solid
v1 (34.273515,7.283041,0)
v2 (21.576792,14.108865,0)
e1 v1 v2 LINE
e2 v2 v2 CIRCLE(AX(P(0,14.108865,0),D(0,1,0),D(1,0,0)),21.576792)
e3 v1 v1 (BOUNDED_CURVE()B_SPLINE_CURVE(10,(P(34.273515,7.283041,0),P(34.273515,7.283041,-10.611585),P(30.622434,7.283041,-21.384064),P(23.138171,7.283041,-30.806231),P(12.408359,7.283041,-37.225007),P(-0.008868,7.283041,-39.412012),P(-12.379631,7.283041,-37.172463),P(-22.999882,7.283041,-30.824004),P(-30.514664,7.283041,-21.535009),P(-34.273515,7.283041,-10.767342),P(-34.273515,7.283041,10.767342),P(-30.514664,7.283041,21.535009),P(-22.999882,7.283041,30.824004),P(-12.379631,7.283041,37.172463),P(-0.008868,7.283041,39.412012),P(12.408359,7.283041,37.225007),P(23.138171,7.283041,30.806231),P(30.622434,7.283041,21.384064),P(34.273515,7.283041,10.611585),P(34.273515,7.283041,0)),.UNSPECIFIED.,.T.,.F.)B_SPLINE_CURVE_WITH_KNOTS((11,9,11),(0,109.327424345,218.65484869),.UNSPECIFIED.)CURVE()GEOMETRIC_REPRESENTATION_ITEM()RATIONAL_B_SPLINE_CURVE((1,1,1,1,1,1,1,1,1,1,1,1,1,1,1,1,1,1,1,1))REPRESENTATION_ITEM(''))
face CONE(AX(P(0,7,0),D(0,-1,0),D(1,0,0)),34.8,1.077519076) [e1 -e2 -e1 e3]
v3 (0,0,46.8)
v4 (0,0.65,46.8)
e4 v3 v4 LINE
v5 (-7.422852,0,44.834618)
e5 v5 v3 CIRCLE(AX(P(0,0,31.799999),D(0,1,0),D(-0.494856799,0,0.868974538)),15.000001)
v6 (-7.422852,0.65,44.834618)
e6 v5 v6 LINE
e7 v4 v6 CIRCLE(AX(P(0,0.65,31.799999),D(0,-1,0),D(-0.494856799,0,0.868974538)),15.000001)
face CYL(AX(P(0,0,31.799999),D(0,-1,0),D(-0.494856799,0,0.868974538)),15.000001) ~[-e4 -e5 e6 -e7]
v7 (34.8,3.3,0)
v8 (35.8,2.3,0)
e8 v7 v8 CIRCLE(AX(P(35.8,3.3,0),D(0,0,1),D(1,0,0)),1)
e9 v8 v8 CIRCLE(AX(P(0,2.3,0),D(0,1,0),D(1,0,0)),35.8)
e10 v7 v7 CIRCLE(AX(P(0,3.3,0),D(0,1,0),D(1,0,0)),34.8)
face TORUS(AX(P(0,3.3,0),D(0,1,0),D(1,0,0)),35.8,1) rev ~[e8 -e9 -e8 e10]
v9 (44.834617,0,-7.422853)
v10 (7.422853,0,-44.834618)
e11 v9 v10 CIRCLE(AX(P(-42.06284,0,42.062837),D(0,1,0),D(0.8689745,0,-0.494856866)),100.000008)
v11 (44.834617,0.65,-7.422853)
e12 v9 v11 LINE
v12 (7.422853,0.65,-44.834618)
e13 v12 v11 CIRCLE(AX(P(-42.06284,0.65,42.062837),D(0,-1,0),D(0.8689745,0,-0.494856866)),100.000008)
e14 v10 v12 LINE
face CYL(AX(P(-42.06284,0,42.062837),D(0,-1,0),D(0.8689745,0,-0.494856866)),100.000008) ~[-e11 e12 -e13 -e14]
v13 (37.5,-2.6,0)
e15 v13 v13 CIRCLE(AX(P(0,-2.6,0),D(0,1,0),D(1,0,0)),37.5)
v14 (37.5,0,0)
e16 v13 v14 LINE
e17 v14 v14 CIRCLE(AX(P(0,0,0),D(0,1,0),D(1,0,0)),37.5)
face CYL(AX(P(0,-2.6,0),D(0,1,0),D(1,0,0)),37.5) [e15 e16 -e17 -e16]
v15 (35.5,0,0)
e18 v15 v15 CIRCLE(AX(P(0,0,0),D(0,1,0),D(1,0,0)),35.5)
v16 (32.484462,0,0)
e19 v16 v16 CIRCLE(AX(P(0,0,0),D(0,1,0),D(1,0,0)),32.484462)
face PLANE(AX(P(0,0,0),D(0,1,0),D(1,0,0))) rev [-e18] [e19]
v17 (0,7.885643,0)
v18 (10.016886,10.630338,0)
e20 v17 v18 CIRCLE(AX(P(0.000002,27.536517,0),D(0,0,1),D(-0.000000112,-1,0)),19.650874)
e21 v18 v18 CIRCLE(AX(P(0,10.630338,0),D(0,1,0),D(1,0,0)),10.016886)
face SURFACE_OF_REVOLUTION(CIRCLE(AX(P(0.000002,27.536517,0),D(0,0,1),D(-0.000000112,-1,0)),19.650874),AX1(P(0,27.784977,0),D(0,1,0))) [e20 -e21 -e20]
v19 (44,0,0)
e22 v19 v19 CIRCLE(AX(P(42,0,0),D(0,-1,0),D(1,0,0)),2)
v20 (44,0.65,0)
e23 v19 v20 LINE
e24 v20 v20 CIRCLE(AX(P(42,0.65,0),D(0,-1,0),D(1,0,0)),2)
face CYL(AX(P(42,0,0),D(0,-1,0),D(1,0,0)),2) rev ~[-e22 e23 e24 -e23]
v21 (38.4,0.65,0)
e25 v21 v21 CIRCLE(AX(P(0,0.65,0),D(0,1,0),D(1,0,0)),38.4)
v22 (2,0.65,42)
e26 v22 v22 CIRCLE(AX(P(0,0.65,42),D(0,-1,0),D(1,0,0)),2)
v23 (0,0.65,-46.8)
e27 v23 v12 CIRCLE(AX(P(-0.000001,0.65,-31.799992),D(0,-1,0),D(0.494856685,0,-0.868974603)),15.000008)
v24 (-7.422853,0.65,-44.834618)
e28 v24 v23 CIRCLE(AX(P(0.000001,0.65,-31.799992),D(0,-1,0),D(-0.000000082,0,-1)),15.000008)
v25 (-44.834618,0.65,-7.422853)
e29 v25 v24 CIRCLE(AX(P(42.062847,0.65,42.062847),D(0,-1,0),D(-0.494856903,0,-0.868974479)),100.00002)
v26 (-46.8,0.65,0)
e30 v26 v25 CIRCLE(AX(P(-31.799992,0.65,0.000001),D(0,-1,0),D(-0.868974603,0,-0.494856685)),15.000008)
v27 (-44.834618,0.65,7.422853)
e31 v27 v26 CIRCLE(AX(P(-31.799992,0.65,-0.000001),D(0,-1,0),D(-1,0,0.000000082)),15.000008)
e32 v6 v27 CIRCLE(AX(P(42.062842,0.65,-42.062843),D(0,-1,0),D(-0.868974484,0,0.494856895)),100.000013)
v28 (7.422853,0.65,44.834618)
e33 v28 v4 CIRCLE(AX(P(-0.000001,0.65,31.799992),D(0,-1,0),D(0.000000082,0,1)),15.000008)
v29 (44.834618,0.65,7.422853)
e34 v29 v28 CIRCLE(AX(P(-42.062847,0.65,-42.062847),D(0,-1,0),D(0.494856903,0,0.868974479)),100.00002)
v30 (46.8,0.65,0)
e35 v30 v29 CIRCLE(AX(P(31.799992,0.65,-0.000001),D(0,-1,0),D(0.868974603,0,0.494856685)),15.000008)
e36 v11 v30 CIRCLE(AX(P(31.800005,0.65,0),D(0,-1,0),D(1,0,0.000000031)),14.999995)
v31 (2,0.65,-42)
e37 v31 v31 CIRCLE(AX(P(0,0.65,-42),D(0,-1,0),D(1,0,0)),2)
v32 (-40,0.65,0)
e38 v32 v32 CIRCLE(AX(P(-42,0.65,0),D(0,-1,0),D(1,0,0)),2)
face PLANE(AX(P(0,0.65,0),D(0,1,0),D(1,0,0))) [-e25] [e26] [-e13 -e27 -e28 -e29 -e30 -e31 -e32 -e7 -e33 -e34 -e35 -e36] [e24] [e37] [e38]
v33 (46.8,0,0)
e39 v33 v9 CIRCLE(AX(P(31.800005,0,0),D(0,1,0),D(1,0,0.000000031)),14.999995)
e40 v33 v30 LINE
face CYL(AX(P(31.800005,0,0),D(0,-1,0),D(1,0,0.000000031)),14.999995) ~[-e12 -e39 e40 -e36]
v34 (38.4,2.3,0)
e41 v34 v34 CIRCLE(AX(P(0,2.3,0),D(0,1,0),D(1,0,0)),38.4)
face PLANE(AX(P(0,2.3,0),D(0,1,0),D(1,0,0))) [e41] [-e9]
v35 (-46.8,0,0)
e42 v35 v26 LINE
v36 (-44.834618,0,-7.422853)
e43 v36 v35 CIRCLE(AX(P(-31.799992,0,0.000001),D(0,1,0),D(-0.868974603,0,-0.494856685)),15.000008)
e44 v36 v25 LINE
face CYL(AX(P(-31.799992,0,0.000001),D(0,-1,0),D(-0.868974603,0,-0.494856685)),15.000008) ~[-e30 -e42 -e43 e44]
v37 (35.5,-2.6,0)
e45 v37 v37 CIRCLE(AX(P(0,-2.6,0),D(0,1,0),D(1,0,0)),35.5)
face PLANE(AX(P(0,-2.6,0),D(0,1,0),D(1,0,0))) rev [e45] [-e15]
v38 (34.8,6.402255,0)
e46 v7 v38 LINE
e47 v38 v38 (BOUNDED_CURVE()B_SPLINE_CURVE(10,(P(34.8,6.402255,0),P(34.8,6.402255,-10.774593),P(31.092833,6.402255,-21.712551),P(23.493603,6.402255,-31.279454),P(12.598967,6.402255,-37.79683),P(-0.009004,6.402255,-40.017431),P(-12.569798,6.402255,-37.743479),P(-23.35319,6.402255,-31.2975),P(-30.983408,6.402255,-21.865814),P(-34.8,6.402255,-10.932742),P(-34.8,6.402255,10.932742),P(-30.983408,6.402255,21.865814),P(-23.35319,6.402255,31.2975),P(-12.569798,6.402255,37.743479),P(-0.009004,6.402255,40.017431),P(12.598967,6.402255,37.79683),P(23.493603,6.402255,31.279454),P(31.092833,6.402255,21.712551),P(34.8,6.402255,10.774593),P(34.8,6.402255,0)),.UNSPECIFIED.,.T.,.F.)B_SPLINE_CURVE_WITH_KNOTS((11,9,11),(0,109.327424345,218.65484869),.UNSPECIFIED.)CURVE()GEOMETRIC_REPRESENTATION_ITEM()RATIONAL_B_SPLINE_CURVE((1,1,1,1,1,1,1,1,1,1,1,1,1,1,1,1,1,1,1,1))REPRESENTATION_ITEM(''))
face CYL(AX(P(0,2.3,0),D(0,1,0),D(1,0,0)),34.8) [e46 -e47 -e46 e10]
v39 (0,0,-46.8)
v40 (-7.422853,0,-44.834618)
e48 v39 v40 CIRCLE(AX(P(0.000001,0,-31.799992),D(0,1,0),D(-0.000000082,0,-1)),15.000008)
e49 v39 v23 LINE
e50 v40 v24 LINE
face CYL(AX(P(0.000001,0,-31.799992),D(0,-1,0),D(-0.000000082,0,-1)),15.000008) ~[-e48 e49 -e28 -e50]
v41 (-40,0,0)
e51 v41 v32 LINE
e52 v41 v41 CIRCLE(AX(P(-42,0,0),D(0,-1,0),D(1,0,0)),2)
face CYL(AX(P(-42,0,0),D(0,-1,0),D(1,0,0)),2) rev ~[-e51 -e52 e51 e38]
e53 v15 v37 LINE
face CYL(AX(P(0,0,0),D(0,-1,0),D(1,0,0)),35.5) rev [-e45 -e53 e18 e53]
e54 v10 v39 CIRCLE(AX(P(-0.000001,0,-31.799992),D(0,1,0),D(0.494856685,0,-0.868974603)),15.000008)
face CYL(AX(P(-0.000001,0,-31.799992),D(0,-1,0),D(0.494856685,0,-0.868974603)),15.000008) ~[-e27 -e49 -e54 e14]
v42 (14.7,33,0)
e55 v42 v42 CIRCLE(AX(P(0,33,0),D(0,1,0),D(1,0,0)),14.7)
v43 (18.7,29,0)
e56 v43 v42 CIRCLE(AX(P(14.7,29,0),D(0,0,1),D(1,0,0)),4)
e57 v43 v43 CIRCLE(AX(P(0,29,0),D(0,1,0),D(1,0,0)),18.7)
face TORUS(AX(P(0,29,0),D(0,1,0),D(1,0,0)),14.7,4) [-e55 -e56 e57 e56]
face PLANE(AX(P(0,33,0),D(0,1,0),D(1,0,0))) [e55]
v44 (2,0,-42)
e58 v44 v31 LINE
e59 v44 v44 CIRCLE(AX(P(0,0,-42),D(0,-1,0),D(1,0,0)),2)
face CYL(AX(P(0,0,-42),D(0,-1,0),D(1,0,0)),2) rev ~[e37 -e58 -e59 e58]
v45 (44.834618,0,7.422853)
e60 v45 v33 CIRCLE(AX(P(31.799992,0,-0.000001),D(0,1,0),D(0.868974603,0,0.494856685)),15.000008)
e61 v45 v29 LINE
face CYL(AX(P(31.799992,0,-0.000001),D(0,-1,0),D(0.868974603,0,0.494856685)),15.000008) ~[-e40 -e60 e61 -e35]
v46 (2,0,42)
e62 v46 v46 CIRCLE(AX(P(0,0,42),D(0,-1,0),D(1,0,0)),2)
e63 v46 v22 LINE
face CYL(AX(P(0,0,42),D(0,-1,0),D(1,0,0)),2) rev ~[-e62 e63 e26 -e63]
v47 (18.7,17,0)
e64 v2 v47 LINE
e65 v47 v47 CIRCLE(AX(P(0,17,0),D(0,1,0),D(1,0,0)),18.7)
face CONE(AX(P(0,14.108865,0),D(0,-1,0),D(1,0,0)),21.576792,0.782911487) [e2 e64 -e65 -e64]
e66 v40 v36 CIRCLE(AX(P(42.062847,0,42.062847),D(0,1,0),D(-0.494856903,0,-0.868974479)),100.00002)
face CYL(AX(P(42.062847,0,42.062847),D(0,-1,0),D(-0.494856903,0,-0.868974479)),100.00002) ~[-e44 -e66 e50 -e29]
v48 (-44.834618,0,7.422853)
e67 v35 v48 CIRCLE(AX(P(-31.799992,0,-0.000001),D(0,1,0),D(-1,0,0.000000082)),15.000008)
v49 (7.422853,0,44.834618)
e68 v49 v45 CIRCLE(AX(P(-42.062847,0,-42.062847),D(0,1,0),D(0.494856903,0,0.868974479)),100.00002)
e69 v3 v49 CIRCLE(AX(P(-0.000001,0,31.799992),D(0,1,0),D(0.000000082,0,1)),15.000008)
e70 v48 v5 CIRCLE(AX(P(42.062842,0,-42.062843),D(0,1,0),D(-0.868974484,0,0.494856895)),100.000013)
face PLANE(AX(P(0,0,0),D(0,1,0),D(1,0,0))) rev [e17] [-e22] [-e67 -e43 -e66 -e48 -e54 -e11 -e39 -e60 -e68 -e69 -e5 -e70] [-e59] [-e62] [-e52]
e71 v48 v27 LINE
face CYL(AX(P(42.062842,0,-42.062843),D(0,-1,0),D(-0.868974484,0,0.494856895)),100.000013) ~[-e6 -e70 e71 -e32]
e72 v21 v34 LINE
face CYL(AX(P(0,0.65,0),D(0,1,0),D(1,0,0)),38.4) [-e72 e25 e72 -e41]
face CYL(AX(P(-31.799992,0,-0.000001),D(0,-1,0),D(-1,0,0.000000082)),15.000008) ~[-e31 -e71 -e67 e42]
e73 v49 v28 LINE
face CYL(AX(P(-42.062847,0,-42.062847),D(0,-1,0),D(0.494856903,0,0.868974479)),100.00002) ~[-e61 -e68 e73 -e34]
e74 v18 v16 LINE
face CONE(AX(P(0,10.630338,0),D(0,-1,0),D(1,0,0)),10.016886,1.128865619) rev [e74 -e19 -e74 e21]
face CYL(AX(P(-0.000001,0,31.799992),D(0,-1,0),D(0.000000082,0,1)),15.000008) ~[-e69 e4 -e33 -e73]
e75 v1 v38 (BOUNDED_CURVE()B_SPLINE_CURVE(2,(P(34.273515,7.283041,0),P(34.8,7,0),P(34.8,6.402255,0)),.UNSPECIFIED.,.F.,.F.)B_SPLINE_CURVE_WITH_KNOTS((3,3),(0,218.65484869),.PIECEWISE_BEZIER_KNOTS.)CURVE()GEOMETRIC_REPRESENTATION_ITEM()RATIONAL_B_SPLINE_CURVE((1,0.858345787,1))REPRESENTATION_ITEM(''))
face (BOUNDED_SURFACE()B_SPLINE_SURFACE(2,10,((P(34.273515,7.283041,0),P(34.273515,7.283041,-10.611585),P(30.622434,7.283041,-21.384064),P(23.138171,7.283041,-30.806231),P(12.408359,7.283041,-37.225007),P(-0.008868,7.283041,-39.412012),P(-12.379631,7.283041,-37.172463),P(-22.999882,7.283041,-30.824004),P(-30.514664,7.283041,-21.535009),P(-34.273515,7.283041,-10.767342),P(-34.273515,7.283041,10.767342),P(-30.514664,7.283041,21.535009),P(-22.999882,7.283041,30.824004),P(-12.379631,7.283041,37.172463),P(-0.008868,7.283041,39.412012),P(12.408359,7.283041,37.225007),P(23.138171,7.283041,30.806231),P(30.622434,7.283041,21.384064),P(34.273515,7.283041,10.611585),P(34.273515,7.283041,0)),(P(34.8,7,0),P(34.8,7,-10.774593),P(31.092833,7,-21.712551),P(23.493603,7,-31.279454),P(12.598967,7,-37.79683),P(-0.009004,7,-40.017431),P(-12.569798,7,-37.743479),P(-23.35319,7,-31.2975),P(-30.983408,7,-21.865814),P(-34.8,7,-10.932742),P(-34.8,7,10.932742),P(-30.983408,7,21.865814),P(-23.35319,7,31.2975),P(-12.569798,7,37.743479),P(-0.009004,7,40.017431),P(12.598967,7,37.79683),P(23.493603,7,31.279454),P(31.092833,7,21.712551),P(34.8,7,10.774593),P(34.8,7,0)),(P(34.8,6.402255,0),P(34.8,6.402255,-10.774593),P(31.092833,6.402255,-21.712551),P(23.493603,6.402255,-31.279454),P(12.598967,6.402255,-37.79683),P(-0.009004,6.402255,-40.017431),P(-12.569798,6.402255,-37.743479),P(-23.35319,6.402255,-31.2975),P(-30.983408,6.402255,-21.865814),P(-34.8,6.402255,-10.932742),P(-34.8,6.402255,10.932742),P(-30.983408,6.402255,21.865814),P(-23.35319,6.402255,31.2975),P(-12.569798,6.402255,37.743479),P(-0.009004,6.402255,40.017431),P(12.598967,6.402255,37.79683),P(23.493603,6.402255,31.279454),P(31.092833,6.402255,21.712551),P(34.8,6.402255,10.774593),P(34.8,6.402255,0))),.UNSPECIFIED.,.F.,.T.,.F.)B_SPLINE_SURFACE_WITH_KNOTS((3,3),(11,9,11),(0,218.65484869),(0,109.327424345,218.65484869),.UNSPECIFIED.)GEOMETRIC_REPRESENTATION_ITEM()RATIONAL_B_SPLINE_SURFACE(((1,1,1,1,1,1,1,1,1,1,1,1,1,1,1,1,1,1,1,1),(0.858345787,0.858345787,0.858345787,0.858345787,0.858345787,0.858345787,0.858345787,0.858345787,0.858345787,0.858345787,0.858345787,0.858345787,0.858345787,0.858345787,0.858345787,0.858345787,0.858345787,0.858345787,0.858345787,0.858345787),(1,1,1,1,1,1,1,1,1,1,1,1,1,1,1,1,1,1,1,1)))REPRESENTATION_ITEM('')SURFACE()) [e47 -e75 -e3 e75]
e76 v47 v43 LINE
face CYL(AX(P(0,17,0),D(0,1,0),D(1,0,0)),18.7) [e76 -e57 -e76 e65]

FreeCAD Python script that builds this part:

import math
import FreeCAD as App
import Part
import Sketcher

V = App.Vector
Q = App.Units.Quantity


def edges_at(feature, points):
    """Names of the edges that pass closest to the given points."""
    edges = feature.Shape.Edges
    near = lambda p: min(range(len(edges)), key=lambda i: edges[i].distToShape(Part.Vertex(*p))[0])
    return sorted({f"Edge{near(p) + 1}" for p in points})

doc = App.newDocument("Part")
body = doc.addObject("PartDesign::Body", "Body")

# Sketch on XY plane
sketch1 = body.newObject("Sketcher::SketchObject", "Sketch")
sketch1.AttachmentSupport = (doc.getObject("XY_Plane"), [""])
sketch1.MapMode = "FlatFace"
sketch1.addGeometry([
    Part.LineSegment(V(37.5, -2.6, 0), V(37.5, 0, 0)),  # 0
    Part.LineSegment(V(37.5, 0, 0), V(46.8, 0, 0)),  # 1
    Part.LineSegment(V(46.8, 0, 0), V(46.8, 0.7, 0)),  # 2
    Part.LineSegment(V(46.8, 0.7, 0), V(38.4, 0.7, 0)),  # 3
    Part.LineSegment(V(38.4, 0.7, 0), V(38.4, 2.3, 0)),  # 4
    Part.LineSegment(V(38.4, 2.3, 0), V(34.8, 2.3, 0)),  # 5
    Part.LineSegment(V(34.8, 2.3, 0), V(34.8, 7, 0)),  # 6
    Part.LineSegment(V(34.8, 7, 0), V(21.6, 14.1, 0)),  # 7
    Part.LineSegment(V(21.6, 14.1, 0), V(18.7, 17, 0)),  # 8
    Part.LineSegment(V(18.7, 17, 0), V(18.7, 33, 0)),  # 9
    Part.LineSegment(V(18.7, 33, 0), V(0, 33, 0)),  # 10
    Part.LineSegment(V(0, 33, 0), V(0, 7.9, 0)),  # 11
    Part.ArcOfCircle(Part.Circle(V(0, 27.5, 0), V(0, 0, 1), 19.7), math.radians(-90), math.radians(-59)),  # 12
    Part.LineSegment(V(10, 10.6, 0), V(32.5, 0, 0)),  # 13
    Part.LineSegment(V(32.5, 0, 0), V(35.5, 0, 0)),  # 14
    Part.LineSegment(V(35.5, 0, 0), V(35.5, -2.6, 0)),  # 15
    Part.LineSegment(V(35.5, -2.6, 0), V(37.5, -2.6, 0)),  # 16
], False)
sketch1.addConstraint([
    Sketcher.Constraint("Coincident", 0, 2, 1, 1),
    Sketcher.Constraint("Coincident", 1, 2, 2, 1),
    Sketcher.Constraint("Coincident", 2, 2, 3, 1),
    Sketcher.Constraint("Coincident", 3, 2, 4, 1),
    Sketcher.Constraint("Coincident", 4, 2, 5, 1),
    Sketcher.Constraint("Coincident", 5, 2, 6, 1),
    Sketcher.Constraint("Coincident", 6, 2, 7, 1),
    Sketcher.Constraint("Coincident", 7, 2, 8, 1),
    Sketcher.Constraint("Coincident", 8, 2, 9, 1),
    Sketcher.Constraint("Coincident", 9, 2, 10, 1),
    Sketcher.Constraint("Coincident", 10, 2, 11, 1),
    Sketcher.Constraint("Coincident", 11, 2, 12, 1),
    Sketcher.Constraint("Coincident", 12, 2, 13, 1),
    Sketcher.Constraint("Coincident", 13, 2, 14, 1),
    Sketcher.Constraint("Coincident", 14, 2, 15, 1),
    Sketcher.Constraint("Coincident", 15, 2, 16, 1),
    Sketcher.Constraint("Coincident", 16, 2, 0, 1),
    Sketcher.Constraint("Vertical", 0),
    Sketcher.Constraint("Horizontal", 1),
    Sketcher.Constraint("Vertical", 2),
    Sketcher.Constraint("Horizontal", 3),
    Sketcher.Constraint("Vertical", 4),
    Sketcher.Constraint("Horizontal", 5),
    Sketcher.Constraint("Vertical", 6),
    Sketcher.Constraint("Vertical", 9),
    Sketcher.Constraint("Horizontal", 10),
    Sketcher.Constraint("Vertical", 11),
    Sketcher.Constraint("Horizontal", 14),
    Sketcher.Constraint("Vertical", 15),
    Sketcher.Constraint("Horizontal", 16),
    Sketcher.Constraint("PointOnObject", 0, 2, -1),
    Sketcher.Constraint("PointOnObject", 10, 2, -2),
    Sketcher.Constraint("PointOnObject", 13, 2, -1),
    Sketcher.Constraint("DistanceX", 16, 1, 16, 2, Q("2 mm")),
    Sketcher.Constraint("DistanceY", 9, 1, 9, 2, Q("16 mm")),
    Sketcher.Constraint("DistanceX", 1, 1, 1, 2, Q("9.3 mm")),
    Sketcher.Constraint("DistanceX", 3, 2, 3, 1, Q("8.4 mm")),
    Sketcher.Constraint("DistanceX", 5, 2, 5, 1, Q("3.6 mm")),
    Sketcher.Constraint("DistanceX", 10, 2, 10, 1, Q("18.7 mm")),
    Sketcher.Constraint("DistanceY", 0, 1, 0, 2, Q("2.6 mm")),
    Sketcher.Constraint("DistanceY", 6, 1, 6, 2, Q("4.7 mm")),
    Sketcher.Constraint("DistanceY", -1, 1, 6, 2, Q("7 mm")),
    Sketcher.Constraint("DistanceY", -1, 1, 8, 2, Q("17 mm")),
    Sketcher.Constraint("DistanceY", 2, 1, 2, 2, Q("0.65 mm")),
    Sketcher.Constraint("DistanceX", -1, 1, 0, 2, Q("37.5 mm")),
    Sketcher.Constraint("Radius", 12, Q("19.650874 mm")),
    Sketcher.Constraint("DistanceX", 14, 1, 14, 2, Q("3.015538 mm")),
    Sketcher.Constraint("DistanceY", 11, 2, 11, 1, Q("25.114357 mm")),
    Sketcher.Constraint("DistanceY", 11, 2, 7, 2, Q("6.223222 mm")),
    Sketcher.Constraint("DistanceY", 12, 2, 12, 3, Q("16.906179 mm")),
    Sketcher.Constraint("Distance", 7, Q("15.012967 mm")),
    Sketcher.Constraint("Distance", 13, Q("24.855504 mm")),
])
revolution = body.newObject("PartDesign::Revolution", "Revolution")
revolution.Profile = sketch1
revolution.ReferenceAxis = (sketch1, ["V_Axis"])
revolution.Angle = 360
doc.recompute()

fillet = body.newObject("PartDesign::Fillet", "Fillet")
fillet.Base = (revolution, edges_at(revolution, [(-18.7, 33, 0)]))
fillet.Radius = 4
doc.recompute()

fillet2 = body.newObject("PartDesign::Fillet", "Fillet001")
fillet2.Base = (fillet, edges_at(fillet, [(-34.8, 7, 0), (-34.8, 2.3, 0)]))
fillet2.Radius = 1

# Sketch on XZ plane
sketch2 = body.newObject("Sketcher::SketchObject", "Sketch001")
sketch2.AttachmentSupport = (doc.getObject("XZ_Plane"), [""])
sketch2.MapMode = "FlatFace"
sketch2.addGeometry([
    Part.ArcOfCircle(Part.Circle(V(0, 0, 0), V(0, 0, 1), 46.8), math.radians(-90), math.radians(0)),  # 0
    Part.ArcOfCircle(Part.Circle(V(31.8, 0, 0), V(0, 0, 1), 15), math.radians(-30), math.radians(0)),  # 1
    Part.ArcOfCircle(Part.Circle(V(-42.1, 42.1, 0), V(0, 0, 1), 100), math.radians(-60), math.radians(-30)),  # 2
    Part.ArcOfCircle(Part.Circle(V(0, -31.8, 0), V(0, 0, 1), 15), math.radians(-90), math.radians(-60)),  # 3
    Part.ArcOfCircle(Part.Circle(V(-31.8, 0, 0), V(0, 0, 1), 15), math.radians(-180), math.radians(-150)),  # 4
    Part.ArcOfCircle(Part.Circle(V(0, 0, 0), V(0, 0, 1), 46.8), math.radians(-180), math.radians(-90)),  # 5
    Part.ArcOfCircle(Part.Circle(V(0, -31.8, 0), V(0, 0, 1), 15), math.radians(-120), math.radians(-90)),  # 6
    Part.ArcOfCircle(Part.Circle(V(42.1, 42.1, 0), V(0, 0, 1), 100), math.radians(-150), math.radians(-120)),  # 7
    Part.ArcOfCircle(Part.Circle(V(0, 31.8, 0), V(0, 0, 1), 15), math.radians(90), math.radians(120)),  # 8
    Part.ArcOfCircle(Part.Circle(V(0, 0, 0), V(0, 0, 1), 46.8), math.radians(90), math.radians(180)),  # 9
    Part.ArcOfCircle(Part.Circle(V(-31.8, 0, 0), V(0, 0, 1), 15), math.radians(150), math.radians(180)),  # 10
    Part.ArcOfCircle(Part.Circle(V(42.1, -42.1, 0), V(0, 0, 1), 100), math.radians(120), math.radians(150)),  # 11
    Part.ArcOfCircle(Part.Circle(V(0, 31.8, 0), V(0, 0, 1), 15), math.radians(60), math.radians(90)),  # 12
    Part.ArcOfCircle(Part.Circle(V(-42.1, -42.1, 0), V(0, 0, 1), 100), math.radians(30), math.radians(60)),  # 13
    Part.ArcOfCircle(Part.Circle(V(31.8, 0, 0), V(0, 0, 1), 15), math.radians(0), math.radians(30)),  # 14
    Part.ArcOfCircle(Part.Circle(V(0, 0, 0), V(0, 0, 1), 46.8), math.radians(0), math.radians(90)),  # 15
    Part.Circle(V(0, -42, 0), V(0, 0, 1), 2),  # 16
    Part.Circle(V(0, 42, 0), V(0, 0, 1), 2),  # 17
    Part.Circle(V(-42, 0, 0), V(0, 0, 1), 2),  # 18
    Part.Circle(V(42, 0, 0), V(0, 0, 1), 2),  # 19
], False)
sketch2.addConstraint([
    Sketcher.Constraint("Tangent", 0, 2, 1, 2),
    Sketcher.Constraint("Tangent", 1, 1, 2, 2),
    Sketcher.Constraint("Tangent", 2, 1, 3, 2),
    Sketcher.Constraint("Tangent", 3, 1, 0, 1),
    Sketcher.Constraint("Tangent", 4, 1, 5, 1),
    Sketcher.Constraint("Tangent", 5, 2, 6, 2),
    Sketcher.Constraint("Tangent", 6, 1, 7, 2),
    Sketcher.Constraint("Tangent", 7, 1, 4, 2),
    Sketcher.Constraint("Tangent", 8, 1, 9, 1),
    Sketcher.Constraint("Tangent", 9, 2, 10, 2),
    Sketcher.Constraint("Tangent", 10, 1, 11, 2),
    Sketcher.Constraint("Tangent", 11, 1, 8, 2),
    Sketcher.Constraint("Tangent", 12, 1, 13, 2),
    Sketcher.Constraint("Tangent", 13, 1, 14, 2),
    Sketcher.Constraint("Tangent", 14, 1, 15, 1),
    Sketcher.Constraint("Tangent", 15, 2, 12, 2),
    Sketcher.Constraint("Coincident", 0, 3, -1, 1),
    Sketcher.Constraint("Coincident", 5, 3, -1, 1),
    Sketcher.Constraint("Coincident", 9, 3, -1, 1),
    Sketcher.Constraint("Coincident", 15, 3, -1, 1),
    Sketcher.Constraint("Coincident", 6, 3, 3, 3),
    Sketcher.Constraint("Coincident", 10, 3, 4, 3),
    Sketcher.Constraint("Coincident", 12, 3, 8, 3),
    Sketcher.Constraint("Coincident", 14, 1, 0, 2),
    Sketcher.Constraint("Equal", 3, 4),
    Sketcher.Constraint("Equal", 0, 5),
    Sketcher.Constraint("Equal", 5, 9),
    Sketcher.Constraint("Equal", 10, 12),
    Sketcher.Constraint("Equal", 7, 13),
    Sketcher.Constraint("Equal", 12, 14),
    Sketcher.Constraint("Equal", 16, 17),
    Sketcher.Constraint("Equal", 17, 18),
    Sketcher.Constraint("Equal", 18, 19),
    Sketcher.Constraint("Symmetric", 2, 3, 11, 3, -1, 1),
    Sketcher.Constraint("Symmetric", 7, 3, 13, 3, -1, 1),
    Sketcher.Constraint("Symmetric", 16, 3, 17, 3, -1, 1),
    Sketcher.Constraint("Symmetric", 18, 3, 19, 3, -1, 1),
    Sketcher.Constraint("Symmetric", 11, 3, 13, 3, -2),
    Sketcher.Constraint("PointOnObject", 1, 3, -1),
    Sketcher.Constraint("PointOnObject", 16, 3, -2),
    Sketcher.Constraint("PointOnObject", 18, 3, -1),
    Sketcher.Constraint("Diameter", 16, Q("4 mm")),
    Sketcher.Constraint("Radius", 8, Q("15.000001 mm")),
    Sketcher.Constraint("Radius", 0, Q("46.800001 mm")),
    Sketcher.Constraint("DistanceY", 16, 3, -1, 1, Q("42 mm")),
    Sketcher.Constraint("DistanceX", 18, 3, -1, 1, Q("42 mm")),
    Sketcher.Constraint("Radius", 7, Q("100.00002 mm")),
])
pocket1 = body.newObject("PartDesign::Pocket", "Pocket")
pocket1.Profile = sketch2
pocket1.Length = 25

doc.recompute()
